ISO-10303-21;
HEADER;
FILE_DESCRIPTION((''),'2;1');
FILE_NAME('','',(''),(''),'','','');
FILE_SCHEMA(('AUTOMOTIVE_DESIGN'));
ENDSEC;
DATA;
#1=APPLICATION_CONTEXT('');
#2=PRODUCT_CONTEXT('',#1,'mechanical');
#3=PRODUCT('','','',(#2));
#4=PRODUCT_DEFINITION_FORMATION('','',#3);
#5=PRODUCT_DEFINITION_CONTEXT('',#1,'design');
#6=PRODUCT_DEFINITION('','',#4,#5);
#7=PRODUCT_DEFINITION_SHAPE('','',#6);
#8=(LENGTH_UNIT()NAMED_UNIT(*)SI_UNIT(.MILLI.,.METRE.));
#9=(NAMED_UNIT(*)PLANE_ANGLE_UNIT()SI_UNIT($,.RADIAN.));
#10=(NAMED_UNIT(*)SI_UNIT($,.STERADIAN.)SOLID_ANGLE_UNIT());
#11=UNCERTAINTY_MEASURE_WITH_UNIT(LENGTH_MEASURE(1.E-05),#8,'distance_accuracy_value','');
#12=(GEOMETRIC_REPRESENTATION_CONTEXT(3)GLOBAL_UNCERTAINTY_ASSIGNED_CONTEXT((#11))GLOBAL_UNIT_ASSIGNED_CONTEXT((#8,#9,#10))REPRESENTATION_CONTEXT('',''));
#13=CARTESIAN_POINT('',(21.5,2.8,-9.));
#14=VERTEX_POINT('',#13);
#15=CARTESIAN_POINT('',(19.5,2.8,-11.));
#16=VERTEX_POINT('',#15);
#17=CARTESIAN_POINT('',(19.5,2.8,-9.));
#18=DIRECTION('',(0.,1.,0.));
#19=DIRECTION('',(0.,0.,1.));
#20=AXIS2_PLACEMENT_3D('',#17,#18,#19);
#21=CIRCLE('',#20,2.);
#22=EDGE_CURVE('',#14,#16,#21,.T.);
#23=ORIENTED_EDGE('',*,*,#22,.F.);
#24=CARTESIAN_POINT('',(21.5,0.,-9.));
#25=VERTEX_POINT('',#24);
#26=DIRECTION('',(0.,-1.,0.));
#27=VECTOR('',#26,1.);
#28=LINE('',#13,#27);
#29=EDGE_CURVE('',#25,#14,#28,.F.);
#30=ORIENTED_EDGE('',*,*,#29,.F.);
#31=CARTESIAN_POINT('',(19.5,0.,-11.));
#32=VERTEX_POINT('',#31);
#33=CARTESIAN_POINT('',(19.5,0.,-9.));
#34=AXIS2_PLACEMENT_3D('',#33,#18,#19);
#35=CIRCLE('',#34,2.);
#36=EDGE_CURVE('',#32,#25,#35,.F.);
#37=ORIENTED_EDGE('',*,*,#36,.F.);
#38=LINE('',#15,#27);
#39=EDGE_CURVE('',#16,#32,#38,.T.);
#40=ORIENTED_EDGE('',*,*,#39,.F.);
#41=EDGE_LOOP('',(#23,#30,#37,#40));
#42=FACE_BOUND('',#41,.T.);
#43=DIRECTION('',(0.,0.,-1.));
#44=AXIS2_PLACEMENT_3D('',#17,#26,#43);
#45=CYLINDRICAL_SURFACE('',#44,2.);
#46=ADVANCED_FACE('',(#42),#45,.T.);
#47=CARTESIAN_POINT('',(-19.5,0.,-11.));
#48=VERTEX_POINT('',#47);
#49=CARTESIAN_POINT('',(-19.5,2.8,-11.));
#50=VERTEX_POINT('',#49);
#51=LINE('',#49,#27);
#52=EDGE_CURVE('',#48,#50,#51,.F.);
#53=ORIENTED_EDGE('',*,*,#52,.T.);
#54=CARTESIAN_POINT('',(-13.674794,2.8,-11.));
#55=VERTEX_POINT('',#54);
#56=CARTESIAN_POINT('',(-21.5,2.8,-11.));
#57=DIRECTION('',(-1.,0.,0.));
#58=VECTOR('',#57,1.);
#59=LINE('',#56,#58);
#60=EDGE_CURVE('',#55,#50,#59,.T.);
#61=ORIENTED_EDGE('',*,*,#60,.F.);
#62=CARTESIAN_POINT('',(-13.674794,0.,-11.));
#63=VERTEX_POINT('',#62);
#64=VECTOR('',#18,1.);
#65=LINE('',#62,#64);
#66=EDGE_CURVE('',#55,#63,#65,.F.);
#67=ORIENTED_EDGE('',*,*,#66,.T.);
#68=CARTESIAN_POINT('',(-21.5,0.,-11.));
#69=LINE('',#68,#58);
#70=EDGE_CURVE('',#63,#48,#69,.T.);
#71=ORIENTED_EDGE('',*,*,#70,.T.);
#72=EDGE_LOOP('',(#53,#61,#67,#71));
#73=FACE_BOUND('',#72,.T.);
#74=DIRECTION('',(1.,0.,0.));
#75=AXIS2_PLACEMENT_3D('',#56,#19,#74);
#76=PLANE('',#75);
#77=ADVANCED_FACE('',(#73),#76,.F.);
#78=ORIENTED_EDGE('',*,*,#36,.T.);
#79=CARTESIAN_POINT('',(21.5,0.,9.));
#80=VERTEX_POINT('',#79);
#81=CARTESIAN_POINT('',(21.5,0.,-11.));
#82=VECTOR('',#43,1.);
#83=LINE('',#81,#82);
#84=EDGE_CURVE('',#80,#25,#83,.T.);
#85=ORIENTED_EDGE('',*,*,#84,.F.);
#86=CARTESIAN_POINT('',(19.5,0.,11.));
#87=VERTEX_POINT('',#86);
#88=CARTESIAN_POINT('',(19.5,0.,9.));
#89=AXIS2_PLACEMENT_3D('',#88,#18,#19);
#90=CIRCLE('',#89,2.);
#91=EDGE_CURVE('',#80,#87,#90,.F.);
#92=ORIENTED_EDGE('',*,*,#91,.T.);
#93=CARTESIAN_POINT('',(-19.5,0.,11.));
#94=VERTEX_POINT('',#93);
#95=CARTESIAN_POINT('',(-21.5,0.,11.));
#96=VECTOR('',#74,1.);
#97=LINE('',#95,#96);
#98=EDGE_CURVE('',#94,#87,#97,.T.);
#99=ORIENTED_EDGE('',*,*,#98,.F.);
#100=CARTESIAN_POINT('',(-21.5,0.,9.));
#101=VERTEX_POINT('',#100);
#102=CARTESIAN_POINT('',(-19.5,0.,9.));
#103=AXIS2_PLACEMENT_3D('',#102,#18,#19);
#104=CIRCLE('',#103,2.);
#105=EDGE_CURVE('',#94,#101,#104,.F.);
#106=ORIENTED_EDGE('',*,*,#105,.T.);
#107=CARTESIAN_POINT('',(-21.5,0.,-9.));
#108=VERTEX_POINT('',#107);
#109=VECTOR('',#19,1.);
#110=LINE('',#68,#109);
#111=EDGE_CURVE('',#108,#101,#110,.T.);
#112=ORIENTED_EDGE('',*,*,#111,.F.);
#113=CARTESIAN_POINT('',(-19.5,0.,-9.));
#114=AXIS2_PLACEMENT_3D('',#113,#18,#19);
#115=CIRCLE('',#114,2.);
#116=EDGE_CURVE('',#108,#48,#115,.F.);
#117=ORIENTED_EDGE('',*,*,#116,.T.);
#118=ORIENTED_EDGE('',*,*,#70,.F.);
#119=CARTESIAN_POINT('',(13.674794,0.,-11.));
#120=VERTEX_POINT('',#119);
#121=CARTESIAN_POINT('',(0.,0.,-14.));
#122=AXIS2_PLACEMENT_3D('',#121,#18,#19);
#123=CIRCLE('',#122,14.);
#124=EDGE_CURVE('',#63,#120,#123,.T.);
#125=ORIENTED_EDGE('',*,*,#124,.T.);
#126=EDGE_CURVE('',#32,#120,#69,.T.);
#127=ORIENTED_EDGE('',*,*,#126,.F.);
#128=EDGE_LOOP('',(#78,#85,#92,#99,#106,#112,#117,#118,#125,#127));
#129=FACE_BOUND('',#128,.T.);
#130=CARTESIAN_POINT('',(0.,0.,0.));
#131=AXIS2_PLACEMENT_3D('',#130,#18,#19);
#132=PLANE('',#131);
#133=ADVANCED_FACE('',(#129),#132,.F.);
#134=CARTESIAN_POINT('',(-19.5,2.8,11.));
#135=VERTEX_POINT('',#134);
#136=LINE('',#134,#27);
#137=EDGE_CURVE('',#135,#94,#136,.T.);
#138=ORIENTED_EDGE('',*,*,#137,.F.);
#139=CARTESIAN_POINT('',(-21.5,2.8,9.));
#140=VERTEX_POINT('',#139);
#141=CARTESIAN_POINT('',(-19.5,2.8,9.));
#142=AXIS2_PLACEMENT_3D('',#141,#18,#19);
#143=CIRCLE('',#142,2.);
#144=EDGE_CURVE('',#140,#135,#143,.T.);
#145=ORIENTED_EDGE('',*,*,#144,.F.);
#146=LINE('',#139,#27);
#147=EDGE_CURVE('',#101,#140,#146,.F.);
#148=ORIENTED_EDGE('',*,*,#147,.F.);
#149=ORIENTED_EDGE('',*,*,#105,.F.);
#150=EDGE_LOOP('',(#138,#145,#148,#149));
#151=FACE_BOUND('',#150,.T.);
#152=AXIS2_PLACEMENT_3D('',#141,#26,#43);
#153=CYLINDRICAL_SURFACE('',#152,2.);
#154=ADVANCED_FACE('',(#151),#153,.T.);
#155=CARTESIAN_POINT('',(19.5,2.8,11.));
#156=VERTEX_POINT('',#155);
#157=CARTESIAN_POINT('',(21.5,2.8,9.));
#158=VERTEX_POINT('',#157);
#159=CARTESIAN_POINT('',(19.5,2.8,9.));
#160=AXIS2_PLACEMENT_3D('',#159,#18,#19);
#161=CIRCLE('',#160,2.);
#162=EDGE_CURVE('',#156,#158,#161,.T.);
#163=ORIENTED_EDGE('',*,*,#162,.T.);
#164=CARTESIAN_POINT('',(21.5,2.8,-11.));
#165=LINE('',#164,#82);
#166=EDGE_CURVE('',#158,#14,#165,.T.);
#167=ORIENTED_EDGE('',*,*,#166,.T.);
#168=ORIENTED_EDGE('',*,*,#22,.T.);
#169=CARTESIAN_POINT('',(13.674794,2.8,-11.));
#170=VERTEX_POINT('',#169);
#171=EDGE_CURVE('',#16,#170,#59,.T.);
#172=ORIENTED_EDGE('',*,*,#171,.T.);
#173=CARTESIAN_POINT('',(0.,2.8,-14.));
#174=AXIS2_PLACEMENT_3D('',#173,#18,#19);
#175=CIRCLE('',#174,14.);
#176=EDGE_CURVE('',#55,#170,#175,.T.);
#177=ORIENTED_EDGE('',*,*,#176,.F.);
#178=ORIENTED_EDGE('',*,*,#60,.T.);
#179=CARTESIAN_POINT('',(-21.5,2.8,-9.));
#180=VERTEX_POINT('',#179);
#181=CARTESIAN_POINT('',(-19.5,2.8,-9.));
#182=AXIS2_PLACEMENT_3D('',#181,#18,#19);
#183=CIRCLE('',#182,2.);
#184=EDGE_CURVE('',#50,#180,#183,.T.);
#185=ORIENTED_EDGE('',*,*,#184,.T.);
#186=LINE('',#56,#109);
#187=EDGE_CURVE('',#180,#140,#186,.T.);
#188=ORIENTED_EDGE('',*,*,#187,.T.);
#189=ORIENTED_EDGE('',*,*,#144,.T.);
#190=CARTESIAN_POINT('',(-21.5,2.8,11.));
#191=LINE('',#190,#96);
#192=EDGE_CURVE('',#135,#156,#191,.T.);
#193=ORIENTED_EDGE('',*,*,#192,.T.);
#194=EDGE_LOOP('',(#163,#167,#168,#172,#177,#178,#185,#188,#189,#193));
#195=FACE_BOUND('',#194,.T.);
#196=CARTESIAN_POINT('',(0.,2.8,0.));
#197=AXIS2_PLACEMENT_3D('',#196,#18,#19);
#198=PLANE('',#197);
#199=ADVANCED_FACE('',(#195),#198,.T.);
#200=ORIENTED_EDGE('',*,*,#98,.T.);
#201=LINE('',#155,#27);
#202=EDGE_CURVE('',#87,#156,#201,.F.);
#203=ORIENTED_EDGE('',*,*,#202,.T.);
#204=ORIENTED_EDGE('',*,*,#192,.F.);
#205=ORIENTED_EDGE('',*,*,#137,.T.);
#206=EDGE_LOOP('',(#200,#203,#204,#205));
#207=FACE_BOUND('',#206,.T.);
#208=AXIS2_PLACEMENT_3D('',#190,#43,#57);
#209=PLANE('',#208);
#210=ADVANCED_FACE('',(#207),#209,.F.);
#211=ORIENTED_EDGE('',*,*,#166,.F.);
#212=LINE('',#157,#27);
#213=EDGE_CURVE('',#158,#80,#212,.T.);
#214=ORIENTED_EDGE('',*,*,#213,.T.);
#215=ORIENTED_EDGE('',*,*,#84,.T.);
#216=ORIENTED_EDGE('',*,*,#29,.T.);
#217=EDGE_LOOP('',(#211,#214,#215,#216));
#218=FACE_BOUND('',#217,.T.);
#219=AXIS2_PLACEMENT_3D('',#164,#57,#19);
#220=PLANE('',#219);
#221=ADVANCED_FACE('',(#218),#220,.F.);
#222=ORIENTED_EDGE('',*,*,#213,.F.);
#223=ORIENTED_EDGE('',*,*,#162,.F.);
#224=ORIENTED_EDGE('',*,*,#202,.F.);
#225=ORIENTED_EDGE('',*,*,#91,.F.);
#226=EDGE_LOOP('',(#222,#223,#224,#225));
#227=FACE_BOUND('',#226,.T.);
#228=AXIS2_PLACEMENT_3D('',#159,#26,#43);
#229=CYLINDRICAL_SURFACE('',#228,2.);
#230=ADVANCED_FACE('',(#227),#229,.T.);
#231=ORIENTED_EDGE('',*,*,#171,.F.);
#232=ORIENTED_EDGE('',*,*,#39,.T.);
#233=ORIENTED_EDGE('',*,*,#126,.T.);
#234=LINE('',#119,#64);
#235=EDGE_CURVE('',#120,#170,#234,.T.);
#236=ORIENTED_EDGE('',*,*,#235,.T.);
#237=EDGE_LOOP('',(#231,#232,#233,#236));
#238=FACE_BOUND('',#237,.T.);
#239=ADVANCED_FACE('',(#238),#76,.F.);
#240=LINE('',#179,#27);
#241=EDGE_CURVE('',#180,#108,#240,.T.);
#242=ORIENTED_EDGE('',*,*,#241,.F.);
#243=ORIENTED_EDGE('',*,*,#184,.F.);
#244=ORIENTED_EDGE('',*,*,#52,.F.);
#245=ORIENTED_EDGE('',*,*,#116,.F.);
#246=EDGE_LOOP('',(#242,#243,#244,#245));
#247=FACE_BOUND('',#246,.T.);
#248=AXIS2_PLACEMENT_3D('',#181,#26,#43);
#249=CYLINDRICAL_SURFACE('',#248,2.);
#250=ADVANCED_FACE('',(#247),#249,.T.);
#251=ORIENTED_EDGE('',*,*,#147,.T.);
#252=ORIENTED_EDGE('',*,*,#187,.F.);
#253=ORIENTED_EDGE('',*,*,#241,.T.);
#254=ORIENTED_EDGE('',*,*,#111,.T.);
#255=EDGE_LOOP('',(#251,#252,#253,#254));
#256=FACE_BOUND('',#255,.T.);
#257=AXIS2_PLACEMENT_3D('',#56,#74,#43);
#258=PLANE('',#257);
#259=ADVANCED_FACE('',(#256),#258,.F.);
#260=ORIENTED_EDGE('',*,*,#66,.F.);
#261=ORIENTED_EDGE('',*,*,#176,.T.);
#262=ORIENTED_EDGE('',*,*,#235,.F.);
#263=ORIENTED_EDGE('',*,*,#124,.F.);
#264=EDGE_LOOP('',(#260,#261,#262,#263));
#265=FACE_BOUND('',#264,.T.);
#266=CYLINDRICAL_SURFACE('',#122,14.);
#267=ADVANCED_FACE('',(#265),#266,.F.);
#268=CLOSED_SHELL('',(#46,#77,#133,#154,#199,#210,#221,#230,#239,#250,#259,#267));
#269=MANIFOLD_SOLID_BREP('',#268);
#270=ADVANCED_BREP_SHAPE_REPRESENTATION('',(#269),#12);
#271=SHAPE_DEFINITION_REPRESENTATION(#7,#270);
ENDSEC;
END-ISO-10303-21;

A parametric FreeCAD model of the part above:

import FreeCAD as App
import Part
import Sketcher


def edges_at(feature, points):
    """Names of the edges that pass closest to the given points."""
    edges = feature.Shape.Edges
    near = lambda p: min(range(len(edges)), key=lambda i: edges[i].distToShape(Part.Vertex(*p))[0])
    return sorted({f"Edge{near(p) + 1}" for p in points})

doc = App.newDocument("Part")
body = doc.addObject("PartDesign::Body", "Body")

# Sketch on XZ plane
sketch1 = doc.addObject("Sketcher::SketchObject", "Sketch")
body.addObject(sketch1)
sketch1.AttachmentSupport = (doc.XZ_Plane, [""])
sketch1.MapMode = "FlatFace"
sketch1.addGeometry(Part.LineSegment(App.Vector(-22, -11, 0), App.Vector(-22, 11, 0)), False)
sketch1.addGeometry(Part.LineSegment(App.Vector(-22, 11, 0), App.Vector(22, 11, 0)), False)
sketch1.addGeometry(Part.LineSegment(App.Vector(22, 11, 0), App.Vector(22, -11, 0)), False)
sketch1.addGeometry(Part.LineSegment(App.Vector(22, -11, 0), App.Vector(-22, -11, 0)), False)
sketch1.addConstraint(Sketcher.Constraint("Coincident", 0, 2, 1, 1))
sketch1.addConstraint(Sketcher.Constraint("Coincident", 1, 2, 2, 1))
sketch1.addConstraint(Sketcher.Constraint("Coincident", 2, 2, 3, 1))
sketch1.addConstraint(Sketcher.Constraint("Coincident", 3, 2, 0, 1))
sketch1.addConstraint(Sketcher.Constraint("Vertical", 0))
sketch1.addConstraint(Sketcher.Constraint("Horizontal", 1))
sketch1.addConstraint(Sketcher.Constraint("Vertical", 2))
sketch1.addConstraint(Sketcher.Constraint("Horizontal", 3))
sketch1.addConstraint(Sketcher.Constraint("Symmetric", 0, 2, 2, 2, -1, 1))
sketch1.addConstraint(Sketcher.Constraint("DistanceX", 1, 1, 1, 2, 43.0))
sketch1.addConstraint(Sketcher.Constraint("DistanceY", 0, 1, 0, 2, 22.0))
pad1 = doc.addObject("PartDesign::Pad", "Pad")
body.addObject(pad1)
pad1.Profile = sketch1
pad1.Length = 2.8
pad1.Reversed = True

# Sketch on XZ plane
sketch2 = doc.addObject("Sketcher::SketchObject", "Sketch001")
body.addObject(sketch2)
sketch2.AttachmentSupport = (doc.XZ_Plane, [""])
sketch2.MapMode = "FlatFace"
sketch2.AttachmentOffset = App.Placement(App.Vector(0, 0, -2.8), App.Rotation())
sketch2.addGeometry(Part.Circle(App.Vector(0, -14, 0), App.Vector(0, 0, 1), 14), False)
sketch2.addConstraint(Sketcher.Constraint("PointOnObject", 0, 3, -2))
sketch2.addConstraint(Sketcher.Constraint("Diameter", 0, 28.0))
sketch2.addConstraint(Sketcher.Constraint("DistanceY", 0, 3, -1, 1, 14.0))
pocket1 = doc.addObject("PartDesign::Pocket", "Pocket")
body.addObject(pocket1)
pocket1.Profile = sketch2
pocket1.Type = "ThroughAll"
pocket1.Reversed = True
doc.recompute()

fillet = doc.addObject("PartDesign::Fillet", "Fillet")
body.addObject(fillet)
fillet.Base = (pocket1, edges_at(pocket1, [
    (21.5, 1.4, 11),
    (-21.5, 1.4, 11),
    (-21.5, 1.4, -11),
    (21.5, 1.4, -11),
]))
fillet.Radius = 2

doc.recompute()
